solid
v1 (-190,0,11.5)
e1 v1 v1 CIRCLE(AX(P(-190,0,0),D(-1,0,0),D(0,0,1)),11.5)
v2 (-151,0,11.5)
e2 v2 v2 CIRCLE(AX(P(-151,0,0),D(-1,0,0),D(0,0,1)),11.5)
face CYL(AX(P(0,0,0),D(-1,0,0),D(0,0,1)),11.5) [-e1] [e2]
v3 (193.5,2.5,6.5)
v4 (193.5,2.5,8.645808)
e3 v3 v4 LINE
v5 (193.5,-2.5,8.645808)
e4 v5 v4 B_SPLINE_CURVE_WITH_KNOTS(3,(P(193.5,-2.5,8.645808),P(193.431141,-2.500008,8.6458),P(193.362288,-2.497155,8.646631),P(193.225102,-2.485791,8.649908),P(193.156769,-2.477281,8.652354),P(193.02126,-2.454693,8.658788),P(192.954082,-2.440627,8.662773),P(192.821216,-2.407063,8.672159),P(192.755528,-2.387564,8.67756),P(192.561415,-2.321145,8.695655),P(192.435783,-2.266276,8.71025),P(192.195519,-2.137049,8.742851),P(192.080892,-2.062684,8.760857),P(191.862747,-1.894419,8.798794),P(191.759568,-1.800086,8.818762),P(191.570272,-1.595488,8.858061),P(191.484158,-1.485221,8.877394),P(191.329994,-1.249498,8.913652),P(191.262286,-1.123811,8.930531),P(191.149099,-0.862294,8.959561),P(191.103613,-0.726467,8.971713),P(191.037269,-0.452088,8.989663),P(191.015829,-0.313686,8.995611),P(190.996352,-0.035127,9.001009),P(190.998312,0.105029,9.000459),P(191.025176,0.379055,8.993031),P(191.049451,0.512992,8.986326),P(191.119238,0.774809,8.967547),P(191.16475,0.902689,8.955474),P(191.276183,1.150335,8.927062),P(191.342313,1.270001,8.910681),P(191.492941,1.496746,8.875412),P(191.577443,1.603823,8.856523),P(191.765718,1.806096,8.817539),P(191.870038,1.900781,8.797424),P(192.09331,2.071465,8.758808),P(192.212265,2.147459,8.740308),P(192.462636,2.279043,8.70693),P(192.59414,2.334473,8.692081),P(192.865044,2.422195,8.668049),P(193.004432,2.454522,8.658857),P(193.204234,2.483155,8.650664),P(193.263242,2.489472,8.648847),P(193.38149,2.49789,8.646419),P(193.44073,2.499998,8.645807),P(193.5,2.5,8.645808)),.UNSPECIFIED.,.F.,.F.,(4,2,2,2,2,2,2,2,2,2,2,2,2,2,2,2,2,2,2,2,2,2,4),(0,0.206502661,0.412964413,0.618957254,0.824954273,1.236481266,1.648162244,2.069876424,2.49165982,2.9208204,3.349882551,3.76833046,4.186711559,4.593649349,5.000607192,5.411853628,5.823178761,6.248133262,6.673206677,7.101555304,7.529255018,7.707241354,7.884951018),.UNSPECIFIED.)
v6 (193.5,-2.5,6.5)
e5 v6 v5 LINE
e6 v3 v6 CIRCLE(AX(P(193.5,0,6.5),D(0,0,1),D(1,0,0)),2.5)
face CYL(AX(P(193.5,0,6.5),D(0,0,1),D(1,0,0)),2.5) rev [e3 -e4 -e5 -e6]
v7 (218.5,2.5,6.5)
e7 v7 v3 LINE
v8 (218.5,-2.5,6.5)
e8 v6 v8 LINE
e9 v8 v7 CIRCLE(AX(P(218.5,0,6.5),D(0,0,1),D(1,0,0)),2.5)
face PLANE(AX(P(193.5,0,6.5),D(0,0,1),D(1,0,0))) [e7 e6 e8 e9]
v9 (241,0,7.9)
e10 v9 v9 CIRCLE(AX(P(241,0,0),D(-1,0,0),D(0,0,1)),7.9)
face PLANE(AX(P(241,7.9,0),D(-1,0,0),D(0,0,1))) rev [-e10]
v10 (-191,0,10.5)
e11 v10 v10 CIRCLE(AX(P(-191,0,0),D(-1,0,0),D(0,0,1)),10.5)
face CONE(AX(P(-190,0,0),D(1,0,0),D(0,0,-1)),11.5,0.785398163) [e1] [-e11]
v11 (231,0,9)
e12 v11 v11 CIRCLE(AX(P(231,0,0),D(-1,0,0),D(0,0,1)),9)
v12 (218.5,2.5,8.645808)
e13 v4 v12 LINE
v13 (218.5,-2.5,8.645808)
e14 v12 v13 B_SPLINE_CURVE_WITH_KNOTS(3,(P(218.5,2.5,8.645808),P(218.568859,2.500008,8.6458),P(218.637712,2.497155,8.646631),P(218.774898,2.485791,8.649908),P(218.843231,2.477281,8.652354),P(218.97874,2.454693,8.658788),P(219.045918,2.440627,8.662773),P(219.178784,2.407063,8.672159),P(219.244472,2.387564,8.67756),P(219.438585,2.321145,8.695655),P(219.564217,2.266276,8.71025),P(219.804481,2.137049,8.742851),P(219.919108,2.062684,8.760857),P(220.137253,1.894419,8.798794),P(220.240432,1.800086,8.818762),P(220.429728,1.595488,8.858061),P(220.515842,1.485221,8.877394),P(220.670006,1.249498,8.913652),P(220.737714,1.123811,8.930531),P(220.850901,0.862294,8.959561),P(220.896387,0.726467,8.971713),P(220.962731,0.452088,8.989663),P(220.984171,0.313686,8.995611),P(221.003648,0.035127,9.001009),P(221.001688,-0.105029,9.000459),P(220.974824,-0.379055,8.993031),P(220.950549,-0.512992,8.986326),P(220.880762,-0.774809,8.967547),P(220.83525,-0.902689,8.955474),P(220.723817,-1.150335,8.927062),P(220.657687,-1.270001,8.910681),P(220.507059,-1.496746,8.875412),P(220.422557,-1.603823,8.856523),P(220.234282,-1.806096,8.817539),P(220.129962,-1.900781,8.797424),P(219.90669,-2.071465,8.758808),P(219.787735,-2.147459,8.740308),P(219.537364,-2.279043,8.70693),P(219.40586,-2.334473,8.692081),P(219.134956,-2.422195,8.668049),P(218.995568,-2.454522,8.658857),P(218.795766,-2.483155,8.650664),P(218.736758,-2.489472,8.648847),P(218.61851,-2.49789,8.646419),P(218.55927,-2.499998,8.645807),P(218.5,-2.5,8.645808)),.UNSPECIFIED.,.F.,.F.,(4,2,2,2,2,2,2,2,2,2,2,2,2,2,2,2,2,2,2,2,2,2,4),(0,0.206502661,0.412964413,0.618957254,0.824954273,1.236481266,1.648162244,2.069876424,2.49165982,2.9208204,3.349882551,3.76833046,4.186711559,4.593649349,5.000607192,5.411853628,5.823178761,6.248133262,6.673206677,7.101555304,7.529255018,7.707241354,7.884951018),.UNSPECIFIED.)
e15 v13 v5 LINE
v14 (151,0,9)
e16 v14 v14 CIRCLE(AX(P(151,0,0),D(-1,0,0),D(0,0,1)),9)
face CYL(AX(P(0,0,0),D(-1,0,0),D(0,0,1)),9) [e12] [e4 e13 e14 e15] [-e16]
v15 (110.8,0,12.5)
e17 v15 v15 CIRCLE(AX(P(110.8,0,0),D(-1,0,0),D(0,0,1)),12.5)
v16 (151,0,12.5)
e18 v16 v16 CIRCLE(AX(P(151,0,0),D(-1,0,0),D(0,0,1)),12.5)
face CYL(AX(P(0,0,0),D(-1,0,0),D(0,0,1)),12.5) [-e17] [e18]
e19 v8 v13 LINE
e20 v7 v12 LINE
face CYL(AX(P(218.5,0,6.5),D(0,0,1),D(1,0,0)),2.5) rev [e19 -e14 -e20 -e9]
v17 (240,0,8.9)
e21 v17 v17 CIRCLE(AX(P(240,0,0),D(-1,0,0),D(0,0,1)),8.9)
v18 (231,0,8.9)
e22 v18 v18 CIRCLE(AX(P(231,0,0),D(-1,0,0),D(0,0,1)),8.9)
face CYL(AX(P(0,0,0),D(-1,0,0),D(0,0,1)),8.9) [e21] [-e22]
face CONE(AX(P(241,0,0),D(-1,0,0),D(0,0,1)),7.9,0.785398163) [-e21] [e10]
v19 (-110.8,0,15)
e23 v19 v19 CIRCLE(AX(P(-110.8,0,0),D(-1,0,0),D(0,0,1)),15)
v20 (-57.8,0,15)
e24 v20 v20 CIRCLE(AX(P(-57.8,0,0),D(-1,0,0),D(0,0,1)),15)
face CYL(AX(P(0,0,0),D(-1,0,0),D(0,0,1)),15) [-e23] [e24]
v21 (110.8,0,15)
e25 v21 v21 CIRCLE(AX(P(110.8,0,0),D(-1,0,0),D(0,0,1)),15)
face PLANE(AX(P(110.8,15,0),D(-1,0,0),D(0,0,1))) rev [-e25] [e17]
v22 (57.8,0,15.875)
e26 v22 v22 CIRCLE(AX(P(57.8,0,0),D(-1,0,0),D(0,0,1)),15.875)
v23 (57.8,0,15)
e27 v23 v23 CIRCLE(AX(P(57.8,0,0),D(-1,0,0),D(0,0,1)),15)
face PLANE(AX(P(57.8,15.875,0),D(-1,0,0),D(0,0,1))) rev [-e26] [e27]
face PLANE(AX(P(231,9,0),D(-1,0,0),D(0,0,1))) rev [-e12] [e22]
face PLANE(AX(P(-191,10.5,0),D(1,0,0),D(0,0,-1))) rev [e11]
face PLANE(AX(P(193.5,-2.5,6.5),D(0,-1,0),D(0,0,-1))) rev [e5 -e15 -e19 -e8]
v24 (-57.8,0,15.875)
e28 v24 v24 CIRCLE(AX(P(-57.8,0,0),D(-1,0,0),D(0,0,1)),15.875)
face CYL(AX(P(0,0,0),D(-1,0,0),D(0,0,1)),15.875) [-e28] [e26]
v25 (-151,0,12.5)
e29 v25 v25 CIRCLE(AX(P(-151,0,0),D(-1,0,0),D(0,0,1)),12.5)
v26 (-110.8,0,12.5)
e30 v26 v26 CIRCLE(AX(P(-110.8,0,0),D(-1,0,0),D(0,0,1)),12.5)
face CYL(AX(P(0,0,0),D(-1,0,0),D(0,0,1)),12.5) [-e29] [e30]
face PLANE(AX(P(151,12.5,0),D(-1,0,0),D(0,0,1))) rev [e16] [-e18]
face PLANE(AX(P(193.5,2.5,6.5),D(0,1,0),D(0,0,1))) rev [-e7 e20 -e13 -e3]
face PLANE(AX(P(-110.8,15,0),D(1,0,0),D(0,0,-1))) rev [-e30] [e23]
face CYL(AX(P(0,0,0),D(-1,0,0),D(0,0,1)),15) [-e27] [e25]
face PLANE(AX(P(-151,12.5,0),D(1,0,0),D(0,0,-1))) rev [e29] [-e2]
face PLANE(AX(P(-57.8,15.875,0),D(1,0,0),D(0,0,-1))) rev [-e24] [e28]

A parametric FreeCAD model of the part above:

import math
import FreeCAD as App
import Part
import Sketcher
from FreeCAD import Vector
Q = App.Units.Quantity

doc = App.newDocument("Part")
body = doc.addObject("PartDesign::Body", "Body")

# Sketch on XY plane
sketch1 = body.newObject("Sketcher::SketchObject", "Sketch")
sketch1.AttachmentSupport = (doc.getObject("XY_Plane"), [""])
sketch1.MapMode = "FlatFace"
sketch1.addGeometry(Part.LineSegment(Vector(57.8, 15.88, 0), Vector(-57.8, 15.88, 0)), False)
sketch1.addGeometry(Part.LineSegment(Vector(-57.8, 15.88, 0), Vector(-57.8, 15, 0)), False)
sketch1.addGeometry(Part.LineSegment(Vector(-57.8, 15, 0), Vector(-110.8, 15, 0)), False)
sketch1.addGeometry(Part.LineSegment(Vector(-110.8, 15, 0), Vector(-110.8, 12.5, 0)), False)
sketch1.addGeometry(Part.LineSegment(Vector(-110.8, 12.5, 0), Vector(-151, 12.5, 0)), False)
sketch1.addGeometry(Part.LineSegment(Vector(-151, 12.5, 0), Vector(-151, 11.5, 0)), False)
sketch1.addGeometry(Part.LineSegment(Vector(-151, 11.5, 0), Vector(-190, 11.5, 0)), False)
sketch1.addGeometry(Part.LineSegment(Vector(-190, 11.5, 0), Vector(-191, 10.5, 0)), False)
sketch1.addGeometry(Part.LineSegment(Vector(-191, 10.5, 0), Vector(-191, 0, 0)), False)
sketch1.addGeometry(Part.LineSegment(Vector(-191, 0, 0), Vector(241, 0, 0)), False)
sketch1.addGeometry(Part.LineSegment(Vector(241, 0, 0), Vector(241, 7.9, 0)), False)
sketch1.addGeometry(Part.LineSegment(Vector(241, 7.9, 0), Vector(240, 8.9, 0)), False)
sketch1.addGeometry(Part.LineSegment(Vector(240, 8.9, 0), Vector(231, 8.9, 0)), False)
sketch1.addGeometry(Part.LineSegment(Vector(231, 8.9, 0), Vector(231, 9, 0)), False)
sketch1.addGeometry(Part.LineSegment(Vector(231, 9, 0), Vector(151, 9, 0)), False)
sketch1.addGeometry(Part.LineSegment(Vector(151, 9, 0), Vector(151, 12.5, 0)), False)
sketch1.addGeometry(Part.LineSegment(Vector(151, 12.5, 0), Vector(110.8, 12.5, 0)), False)
sketch1.addGeometry(Part.LineSegment(Vector(110.8, 12.5, 0), Vector(110.8, 15, 0)), False)
sketch1.addGeometry(Part.LineSegment(Vector(110.8, 15, 0), Vector(57.8, 15, 0)), False)
sketch1.addGeometry(Part.LineSegment(Vector(57.8, 15, 0), Vector(57.8, 15.88, 0)), False)
sketch1.addConstraint(Sketcher.Constraint("Coincident", 0, 2, 1, 1))
sketch1.addConstraint(Sketcher.Constraint("Coincident", 1, 2, 2, 1))
sketch1.addConstraint(Sketcher.Constraint("Coincident", 2, 2, 3, 1))
sketch1.addConstraint(Sketcher.Constraint("Coincident", 3, 2, 4, 1))
sketch1.addConstraint(Sketcher.Constraint("Coincident", 4, 2, 5, 1))
sketch1.addConstraint(Sketcher.Constraint("Coincident", 5, 2, 6, 1))
sketch1.addConstraint(Sketcher.Constraint("Coincident", 6, 2, 7, 1))
sketch1.addConstraint(Sketcher.Constraint("Coincident", 7, 2, 8, 1))
sketch1.addConstraint(Sketcher.Constraint("Coincident", 8, 2, 9, 1))
sketch1.addConstraint(Sketcher.Constraint("Coincident", 9, 2, 10, 1))
sketch1.addConstraint(Sketcher.Constraint("Coincident", 10, 2, 11, 1))
sketch1.addConstraint(Sketcher.Constraint("Coincident", 11, 2, 12, 1))
sketch1.addConstraint(Sketcher.Constraint("Coincident", 12, 2, 13, 1))
sketch1.addConstraint(Sketcher.Constraint("Coincident", 13, 2, 14, 1))
sketch1.addConstraint(Sketcher.Constraint("Coincident", 14, 2, 15, 1))
sketch1.addConstraint(Sketcher.Constraint("Coincident", 15, 2, 16, 1))
sketch1.addConstraint(Sketcher.Constraint("Coincident", 16, 2, 17, 1))
sketch1.addConstraint(Sketcher.Constraint("Coincident", 17, 2, 18, 1))
sketch1.addConstraint(Sketcher.Constraint("Coincident", 18, 2, 19, 1))
sketch1.addConstraint(Sketcher.Constraint("Coincident", 19, 2, 0, 1))
sketch1.addConstraint(Sketcher.Constraint("Horizontal", 0))
sketch1.addConstraint(Sketcher.Constraint("Vertical", 1))
sketch1.addConstraint(Sketcher.Constraint("Horizontal", 2))
sketch1.addConstraint(Sketcher.Constraint("Vertical", 3))
sketch1.addConstraint(Sketcher.Constraint("Horizontal", 4))
sketch1.addConstraint(Sketcher.Constraint("Vertical", 5))
sketch1.addConstraint(Sketcher.Constraint("Horizontal", 6))
sketch1.addConstraint(Sketcher.Constraint("Vertical", 8))
sketch1.addConstraint(Sketcher.Constraint("Horizontal", 9))
sketch1.addConstraint(Sketcher.Constraint("Vertical", 10))
sketch1.addConstraint(Sketcher.Constraint("Horizontal", 12))
sketch1.addConstraint(Sketcher.Constraint("Vertical", 13))
sketch1.addConstraint(Sketcher.Constraint("Horizontal", 14))
sketch1.addConstraint(Sketcher.Constraint("Vertical", 15))
sketch1.addConstraint(Sketcher.Constraint("Horizontal", 16))
sketch1.addConstraint(Sketcher.Constraint("Vertical", 17))
sketch1.addConstraint(Sketcher.Constraint("Horizontal", 18))
sketch1.addConstraint(Sketcher.Constraint("Vertical", 19))
sketch1.addConstraint(Sketcher.Constraint("Symmetric", 4, 2, 15, 2, -2))
sketch1.addConstraint(Sketcher.Constraint("Symmetric", 2, 2, 17, 2, -2))
sketch1.addConstraint(Sketcher.Constraint("PointOnObject", 8, 2, -1))
sketch1.addConstraint(Sketcher.Constraint("Perpendicular", 7, 11))
sketch1.addConstraint(Sketcher.Constraint("Equal", 2, 18))
sketch1.addConstraint(Sketcher.Constraint("Equal", 7, 11))
sketch1.addConstraint(Sketcher.Constraint("DistanceX", 2, 2, 2, 1, 53.0))
sketch1.addConstraint(Sketcher.Constraint("DistanceX", 6, 2, 6, 1, 39.0))
sketch1.addConstraint(Sketcher.Constraint("DistanceX", 9, 1, 9, 2, 432.0))
sketch1.addConstraint(Sketcher.Constraint("DistanceX", 12, 2, 12, 1, 9.0))
sketch1.addConstraint(Sketcher.Constraint("DistanceX", 14, 2, 14, 1, 80.0))
sketch1.addConstraint(Sketcher.Constraint("DistanceY", 5, 2, 5, 1, 1.0))
sketch1.addConstraint(Sketcher.Constraint("Angle", 7, Q("-135 deg")))
sketch1.addConstraint(Sketcher.Constraint("DistanceX", 0, 2, 0, 1, 115.6))
sketch1.addConstraint(Sketcher.Constraint("DistanceX", 4, 2, 4, 1, 40.2))
sketch1.addConstraint(Sketcher.Constraint("DistanceY", 3, 2, 3, 1, 2.5))
sketch1.addConstraint(Sketcher.Constraint("DistanceY", 8, 2, 8, 1, 10.5))
sketch1.addConstraint(Sketcher.Constraint("DistanceY", 10, 1, 10, 2, 7.9))
sketch1.addConstraint(Sketcher.Constraint("DistanceY", 13, 1, 13, 2, 0.1))
sketch1.addConstraint(Sketcher.Constraint("DistanceY", 1, 2, 1, 1, 0.875))
revolution = body.newObject("PartDesign::Revolution", "Revolution")
revolution.Profile = sketch1
revolution.ReferenceAxis = (sketch1, ["H_Axis"])
revolution.Angle = 360

# Sketch on XY plane
sketch2 = body.newObject("Sketcher::SketchObject", "Sketch001")
sketch2.AttachmentSupport = (doc.getObject("XY_Plane"), [""])
sketch2.MapMode = "FlatFace"
sketch2.AttachmentOffset = App.Placement(Vector(0, 0, 9), App.Rotation())
sketch2.addGeometry(Part.LineSegment(Vector(218.5, 2.5, 0), Vector(193.5, 2.5, 0)), False)
sketch2.addGeometry(Part.ArcOfCircle(Part.Circle(Vector(193.5, 0, 0), Vector(0, 0, 1), 2.5), math.radians(90), math.radians(270)), False)
sketch2.addGeometry(Part.LineSegment(Vector(193.5, -2.5, 0), Vector(218.5, -2.5, 0)), False)
sketch2.addGeometry(Part.ArcOfCircle(Part.Circle(Vector(218.5, 0, 0), Vector(0, 0, 1), 2.5), math.radians(-90), math.radians(90)), False)
sketch2.addConstraint(Sketcher.Constraint("Tangent", 0, 2, 1, 1))
sketch2.addConstraint(Sketcher.Constraint("Tangent", 1, 2, 2, 1))
sketch2.addConstraint(Sketcher.Constraint("Tangent", 2, 2, 3, 1))
sketch2.addConstraint(Sketcher.Constraint("Tangent", 3, 2, 0, 1))
sketch2.addConstraint(Sketcher.Constraint("Horizontal", 0))
sketch2.addConstraint(Sketcher.Constraint("Horizontal", 2))
sketch2.addConstraint(Sketcher.Constraint("PointOnObject", 1, 3, -1))
sketch2.addConstraint(Sketcher.Constraint("Radius", 1, 2.5))
sketch2.addConstraint(Sketcher.Constraint("DistanceX", 0, 2, 0, 1, 25.0))
sketch2.addConstraint(Sketcher.Constraint("DistanceX", -1, 1, 1, 3, 193.5))
pocket1 = body.newObject("PartDesign::Pocket", "Pocket")
pocket1.Profile = sketch2
pocket1.Length = 2.5

doc.recompute()
